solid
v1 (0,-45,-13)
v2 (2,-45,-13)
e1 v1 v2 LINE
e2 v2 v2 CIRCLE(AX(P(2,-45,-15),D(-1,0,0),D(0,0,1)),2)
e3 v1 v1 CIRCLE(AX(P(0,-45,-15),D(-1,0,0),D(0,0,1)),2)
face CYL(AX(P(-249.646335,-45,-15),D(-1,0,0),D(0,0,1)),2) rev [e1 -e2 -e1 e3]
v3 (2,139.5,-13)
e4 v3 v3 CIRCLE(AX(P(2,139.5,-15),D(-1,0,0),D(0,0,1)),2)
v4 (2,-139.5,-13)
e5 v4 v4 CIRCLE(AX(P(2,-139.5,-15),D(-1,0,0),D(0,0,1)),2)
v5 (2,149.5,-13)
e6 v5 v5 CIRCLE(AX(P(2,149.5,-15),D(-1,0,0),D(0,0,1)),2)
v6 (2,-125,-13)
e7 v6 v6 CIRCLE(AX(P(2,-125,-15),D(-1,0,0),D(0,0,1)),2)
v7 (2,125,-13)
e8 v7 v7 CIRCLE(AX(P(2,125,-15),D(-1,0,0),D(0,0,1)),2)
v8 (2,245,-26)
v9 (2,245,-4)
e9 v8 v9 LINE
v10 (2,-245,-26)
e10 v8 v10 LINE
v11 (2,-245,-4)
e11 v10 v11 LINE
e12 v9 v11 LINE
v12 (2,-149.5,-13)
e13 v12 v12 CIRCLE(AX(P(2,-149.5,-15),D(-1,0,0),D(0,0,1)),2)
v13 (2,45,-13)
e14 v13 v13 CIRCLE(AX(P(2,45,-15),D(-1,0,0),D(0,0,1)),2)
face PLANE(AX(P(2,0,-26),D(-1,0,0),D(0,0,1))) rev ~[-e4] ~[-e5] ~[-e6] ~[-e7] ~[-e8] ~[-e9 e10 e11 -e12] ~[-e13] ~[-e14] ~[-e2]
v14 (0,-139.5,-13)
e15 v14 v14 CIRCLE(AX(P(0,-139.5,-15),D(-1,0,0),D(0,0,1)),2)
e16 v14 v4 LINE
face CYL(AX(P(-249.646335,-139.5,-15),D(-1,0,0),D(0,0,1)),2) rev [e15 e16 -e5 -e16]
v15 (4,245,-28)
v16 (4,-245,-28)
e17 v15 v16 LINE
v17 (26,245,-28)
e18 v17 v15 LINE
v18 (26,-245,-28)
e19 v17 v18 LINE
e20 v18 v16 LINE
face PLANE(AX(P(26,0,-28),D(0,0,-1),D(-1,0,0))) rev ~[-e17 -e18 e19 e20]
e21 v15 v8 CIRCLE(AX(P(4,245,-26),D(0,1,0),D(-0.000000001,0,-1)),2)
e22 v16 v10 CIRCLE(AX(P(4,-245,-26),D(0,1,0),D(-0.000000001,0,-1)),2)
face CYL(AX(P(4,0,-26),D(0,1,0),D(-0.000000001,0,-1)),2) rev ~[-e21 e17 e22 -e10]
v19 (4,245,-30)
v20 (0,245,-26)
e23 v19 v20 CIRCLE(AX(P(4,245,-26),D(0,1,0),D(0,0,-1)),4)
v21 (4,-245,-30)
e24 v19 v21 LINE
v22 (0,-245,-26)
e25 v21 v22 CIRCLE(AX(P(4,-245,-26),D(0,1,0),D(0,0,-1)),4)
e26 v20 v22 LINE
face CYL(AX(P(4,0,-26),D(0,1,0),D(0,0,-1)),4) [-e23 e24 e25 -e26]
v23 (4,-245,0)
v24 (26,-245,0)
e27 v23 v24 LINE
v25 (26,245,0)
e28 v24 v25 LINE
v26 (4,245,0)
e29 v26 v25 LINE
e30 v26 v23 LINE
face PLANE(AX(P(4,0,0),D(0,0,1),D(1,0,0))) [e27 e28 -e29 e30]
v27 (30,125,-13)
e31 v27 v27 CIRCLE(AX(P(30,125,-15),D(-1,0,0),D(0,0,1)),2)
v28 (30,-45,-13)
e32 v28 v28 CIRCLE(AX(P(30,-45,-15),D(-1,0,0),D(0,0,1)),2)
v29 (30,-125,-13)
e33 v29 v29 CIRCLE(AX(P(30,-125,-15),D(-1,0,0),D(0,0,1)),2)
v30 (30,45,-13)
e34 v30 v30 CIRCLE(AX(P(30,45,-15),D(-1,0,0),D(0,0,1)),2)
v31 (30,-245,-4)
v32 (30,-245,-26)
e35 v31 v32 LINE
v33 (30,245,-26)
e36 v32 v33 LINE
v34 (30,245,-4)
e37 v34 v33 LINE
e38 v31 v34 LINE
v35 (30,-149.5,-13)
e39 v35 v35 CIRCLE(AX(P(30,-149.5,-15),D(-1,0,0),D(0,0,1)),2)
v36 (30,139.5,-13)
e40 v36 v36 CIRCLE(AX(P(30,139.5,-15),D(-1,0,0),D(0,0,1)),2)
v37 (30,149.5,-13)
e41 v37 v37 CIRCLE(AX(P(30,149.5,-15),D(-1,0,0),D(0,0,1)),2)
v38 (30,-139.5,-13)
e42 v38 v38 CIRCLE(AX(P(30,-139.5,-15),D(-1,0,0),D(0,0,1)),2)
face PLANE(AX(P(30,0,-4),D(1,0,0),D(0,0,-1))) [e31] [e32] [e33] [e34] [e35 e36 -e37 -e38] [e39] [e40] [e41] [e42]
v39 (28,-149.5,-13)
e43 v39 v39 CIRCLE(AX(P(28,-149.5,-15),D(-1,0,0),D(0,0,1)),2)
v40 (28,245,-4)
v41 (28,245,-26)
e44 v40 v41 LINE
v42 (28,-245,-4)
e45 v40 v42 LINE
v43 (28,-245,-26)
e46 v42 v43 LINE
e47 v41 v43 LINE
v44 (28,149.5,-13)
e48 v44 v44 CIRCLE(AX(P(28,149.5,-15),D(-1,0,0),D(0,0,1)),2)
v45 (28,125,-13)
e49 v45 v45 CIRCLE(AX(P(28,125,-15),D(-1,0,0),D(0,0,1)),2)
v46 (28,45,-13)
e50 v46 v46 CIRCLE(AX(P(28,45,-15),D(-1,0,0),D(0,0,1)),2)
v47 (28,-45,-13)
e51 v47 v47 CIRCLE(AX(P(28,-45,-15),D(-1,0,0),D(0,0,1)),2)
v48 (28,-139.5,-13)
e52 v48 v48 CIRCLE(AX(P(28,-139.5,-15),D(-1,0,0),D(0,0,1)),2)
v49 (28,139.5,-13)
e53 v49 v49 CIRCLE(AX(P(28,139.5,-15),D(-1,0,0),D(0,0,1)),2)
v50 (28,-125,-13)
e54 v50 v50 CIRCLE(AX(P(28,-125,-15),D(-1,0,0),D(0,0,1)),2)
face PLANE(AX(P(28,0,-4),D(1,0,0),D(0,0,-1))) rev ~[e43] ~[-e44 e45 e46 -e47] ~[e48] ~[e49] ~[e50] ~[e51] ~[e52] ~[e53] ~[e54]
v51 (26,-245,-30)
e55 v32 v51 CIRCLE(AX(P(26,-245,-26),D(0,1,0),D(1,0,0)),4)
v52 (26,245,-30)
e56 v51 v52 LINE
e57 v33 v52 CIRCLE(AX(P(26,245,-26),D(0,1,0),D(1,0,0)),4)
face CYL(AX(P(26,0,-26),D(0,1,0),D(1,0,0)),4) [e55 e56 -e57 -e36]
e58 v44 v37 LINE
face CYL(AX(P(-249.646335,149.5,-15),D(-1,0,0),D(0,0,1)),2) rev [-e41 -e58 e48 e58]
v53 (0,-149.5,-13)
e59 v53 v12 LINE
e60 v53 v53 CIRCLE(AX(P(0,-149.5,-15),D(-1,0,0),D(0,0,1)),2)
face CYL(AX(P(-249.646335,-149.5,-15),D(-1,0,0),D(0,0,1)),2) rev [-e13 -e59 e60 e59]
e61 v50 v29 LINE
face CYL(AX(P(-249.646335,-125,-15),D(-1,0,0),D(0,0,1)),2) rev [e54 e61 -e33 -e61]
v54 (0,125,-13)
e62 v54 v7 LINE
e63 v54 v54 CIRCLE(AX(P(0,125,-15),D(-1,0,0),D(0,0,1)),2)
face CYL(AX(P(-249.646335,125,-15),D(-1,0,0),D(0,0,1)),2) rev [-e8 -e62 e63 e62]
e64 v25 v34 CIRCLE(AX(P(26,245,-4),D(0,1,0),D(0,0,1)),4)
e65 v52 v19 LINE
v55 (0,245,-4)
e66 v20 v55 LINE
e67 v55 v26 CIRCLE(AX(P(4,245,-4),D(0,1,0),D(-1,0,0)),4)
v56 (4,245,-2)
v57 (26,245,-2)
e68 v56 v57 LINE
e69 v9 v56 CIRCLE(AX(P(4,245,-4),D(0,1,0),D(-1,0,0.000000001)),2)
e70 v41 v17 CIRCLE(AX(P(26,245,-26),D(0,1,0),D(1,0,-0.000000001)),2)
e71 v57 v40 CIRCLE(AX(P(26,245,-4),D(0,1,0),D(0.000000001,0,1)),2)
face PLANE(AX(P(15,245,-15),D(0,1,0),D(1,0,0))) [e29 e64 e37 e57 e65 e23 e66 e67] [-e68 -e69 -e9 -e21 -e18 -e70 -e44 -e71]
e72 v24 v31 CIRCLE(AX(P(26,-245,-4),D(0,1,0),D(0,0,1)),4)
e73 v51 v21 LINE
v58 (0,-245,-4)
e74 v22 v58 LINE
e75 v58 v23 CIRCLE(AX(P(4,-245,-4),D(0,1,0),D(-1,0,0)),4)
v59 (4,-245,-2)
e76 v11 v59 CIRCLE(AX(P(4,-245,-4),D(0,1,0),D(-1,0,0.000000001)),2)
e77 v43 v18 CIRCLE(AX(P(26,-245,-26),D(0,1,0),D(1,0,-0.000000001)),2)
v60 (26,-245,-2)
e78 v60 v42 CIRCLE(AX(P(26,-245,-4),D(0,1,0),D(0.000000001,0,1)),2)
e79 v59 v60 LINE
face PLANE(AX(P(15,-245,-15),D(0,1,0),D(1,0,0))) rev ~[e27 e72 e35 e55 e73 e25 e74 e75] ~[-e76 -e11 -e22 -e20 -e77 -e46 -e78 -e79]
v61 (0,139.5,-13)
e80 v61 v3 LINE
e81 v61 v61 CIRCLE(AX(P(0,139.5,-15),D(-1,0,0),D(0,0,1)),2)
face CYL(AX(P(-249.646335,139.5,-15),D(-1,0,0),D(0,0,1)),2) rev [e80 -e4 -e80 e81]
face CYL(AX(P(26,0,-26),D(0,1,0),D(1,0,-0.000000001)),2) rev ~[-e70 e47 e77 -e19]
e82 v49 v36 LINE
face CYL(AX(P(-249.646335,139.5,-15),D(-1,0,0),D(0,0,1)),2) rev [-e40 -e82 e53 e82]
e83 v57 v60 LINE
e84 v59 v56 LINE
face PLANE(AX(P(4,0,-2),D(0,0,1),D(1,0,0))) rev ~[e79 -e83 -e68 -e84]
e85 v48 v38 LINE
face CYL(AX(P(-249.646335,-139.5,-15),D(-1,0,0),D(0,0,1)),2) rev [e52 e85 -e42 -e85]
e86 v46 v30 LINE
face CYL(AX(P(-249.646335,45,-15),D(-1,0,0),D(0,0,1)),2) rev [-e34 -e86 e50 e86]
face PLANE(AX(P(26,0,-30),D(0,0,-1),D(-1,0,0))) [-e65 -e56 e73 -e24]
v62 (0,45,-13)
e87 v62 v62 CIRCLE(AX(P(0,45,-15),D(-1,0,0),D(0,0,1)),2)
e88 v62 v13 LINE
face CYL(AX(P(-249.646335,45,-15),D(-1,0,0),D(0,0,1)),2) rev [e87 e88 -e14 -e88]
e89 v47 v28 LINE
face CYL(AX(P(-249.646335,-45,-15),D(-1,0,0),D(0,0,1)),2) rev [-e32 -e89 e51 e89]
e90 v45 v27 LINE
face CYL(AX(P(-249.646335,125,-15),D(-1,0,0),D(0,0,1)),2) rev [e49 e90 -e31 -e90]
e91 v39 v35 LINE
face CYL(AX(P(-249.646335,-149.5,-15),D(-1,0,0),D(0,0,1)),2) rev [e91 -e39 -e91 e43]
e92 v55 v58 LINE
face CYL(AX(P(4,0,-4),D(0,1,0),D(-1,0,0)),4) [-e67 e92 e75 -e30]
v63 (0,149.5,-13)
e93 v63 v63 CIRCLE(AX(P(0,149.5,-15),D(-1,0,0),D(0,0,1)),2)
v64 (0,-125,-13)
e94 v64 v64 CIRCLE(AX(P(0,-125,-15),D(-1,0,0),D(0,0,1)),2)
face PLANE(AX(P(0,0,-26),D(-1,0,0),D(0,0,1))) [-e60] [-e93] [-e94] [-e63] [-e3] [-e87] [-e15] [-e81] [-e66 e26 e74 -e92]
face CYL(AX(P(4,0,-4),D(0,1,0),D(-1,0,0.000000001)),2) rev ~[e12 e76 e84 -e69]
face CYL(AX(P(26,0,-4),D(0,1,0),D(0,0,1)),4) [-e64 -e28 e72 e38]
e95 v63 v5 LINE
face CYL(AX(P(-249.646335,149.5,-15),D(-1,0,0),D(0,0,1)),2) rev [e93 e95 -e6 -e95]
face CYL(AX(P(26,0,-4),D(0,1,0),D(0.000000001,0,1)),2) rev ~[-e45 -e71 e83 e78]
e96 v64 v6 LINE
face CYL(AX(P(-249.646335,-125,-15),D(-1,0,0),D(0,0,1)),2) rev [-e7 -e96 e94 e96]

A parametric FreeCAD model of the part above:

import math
import FreeCAD as App
import Part
import Sketcher
from FreeCAD import Vector

doc = App.newDocument("Part")
params = doc.addObject("Spreadsheet::Sheet", "Params")
for row, (alias, value) in enumerate([
    ("sketch1_radius", "4 mm"),
    ("sketch1_radius2", "2 mm"),
    ("sketch1_width", "22 mm"),
    ("pad1_length", "490 mm"),
    ("sketch2_diameter", "4 mm"),
], start=1):
    params.set(f"A{row}", alias)
    params.set(f"B{row}", "=" + value)
    params.setAlias(f"B{row}", alias)

body = doc.addObject("PartDesign::Body", "Body")

# Sketch on XZ plane
sketch1 = doc.addObject("Sketcher::SketchObject", "Sketch")
body.addObject(sketch1)
sketch1.AttachmentSupport = (doc.XZ_Plane, [""])
sketch1.MapMode = "FlatFace"
sketch1.addGeometry([
    Part.LineSegment(Vector(4, 0, 0), Vector(26, 0, 0)),  # 0
    Part.ArcOfCircle(Part.Circle(Vector(26, -4, 0), Vector(0, 0, 1), 4), math.radians(0), math.radians(90)),  # 1
    Part.LineSegment(Vector(30, -4, 0), Vector(30, -26, 0)),  # 2
    Part.ArcOfCircle(Part.Circle(Vector(26, -26, 0), Vector(0, 0, 1), 4), math.radians(-90), math.radians(0)),  # 3
    Part.LineSegment(Vector(26, -30, 0), Vector(4, -30, 0)),  # 4
    Part.ArcOfCircle(Part.Circle(Vector(4, -26, 0), Vector(0, 0, 1), 4), math.radians(180), math.radians(270)),  # 5
    Part.LineSegment(Vector(0, -26, 0), Vector(0, -4, 0)),  # 6
    Part.ArcOfCircle(Part.Circle(Vector(4, -4, 0), Vector(0, 0, 1), 4), math.radians(90), math.radians(180)),  # 7
    Part.LineSegment(Vector(26, -2, 0), Vector(4, -2, 0)),  # 8
    Part.ArcOfCircle(Part.Circle(Vector(4, -4, 0), Vector(0, 0, 1), 2), math.radians(90), math.radians(180)),  # 9
    Part.LineSegment(Vector(2, -4, 0), Vector(2, -26, 0)),  # 10
    Part.ArcOfCircle(Part.Circle(Vector(4, -26, 0), Vector(0, 0, 1), 2), math.radians(-180), math.radians(-90)),  # 11
    Part.LineSegment(Vector(4, -28, 0), Vector(26, -28, 0)),  # 12
    Part.ArcOfCircle(Part.Circle(Vector(26, -26, 0), Vector(0, 0, 1), 2), math.radians(-90), math.radians(0)),  # 13
    Part.LineSegment(Vector(28, -26, 0), Vector(28, -4, 0)),  # 14
    Part.ArcOfCircle(Part.Circle(Vector(26, -4, 0), Vector(0, 0, 1), 2), math.radians(0), math.radians(90)),  # 15
], False)
sketch1.addConstraint([
    Sketcher.Constraint("Tangent", 0, 2, 1, 2),
    Sketcher.Constraint("Tangent", 1, 1, 2, 1),
    Sketcher.Constraint("Tangent", 2, 2, 3, 2),
    Sketcher.Constraint("Tangent", 3, 1, 4, 1),
    Sketcher.Constraint("Tangent", 4, 2, 5, 2),
    Sketcher.Constraint("Tangent", 5, 1, 6, 1),
    Sketcher.Constraint("Tangent", 6, 2, 7, 2),
    Sketcher.Constraint("Tangent", 7, 1, 0, 1),
    Sketcher.Constraint("Tangent", 8, 2, 9, 1),
    Sketcher.Constraint("Tangent", 9, 2, 10, 1),
    Sketcher.Constraint("Tangent", 10, 2, 11, 1),
    Sketcher.Constraint("Tangent", 11, 2, 12, 1),
    Sketcher.Constraint("Tangent", 12, 2, 13, 1),
    Sketcher.Constraint("Tangent", 13, 2, 14, 1),
    Sketcher.Constraint("Tangent", 14, 2, 15, 1),
    Sketcher.Constraint("Tangent", 15, 2, 8, 1),
    Sketcher.Constraint("Horizontal", 0),
    Sketcher.Constraint("Vertical", 2),
    Sketcher.Constraint("Horizontal", 4),
    Sketcher.Constraint("Vertical", 6),
    Sketcher.Constraint("Horizontal", 8),
    Sketcher.Constraint("Vertical", 10),
    Sketcher.Constraint("Horizontal", 12),
    Sketcher.Constraint("Vertical", 14),
    Sketcher.Constraint("Coincident", 9, 3, 7, 3),
    Sketcher.Constraint("Coincident", 11, 3, 5, 3),
    Sketcher.Constraint("Coincident", 13, 3, 3, 3),
    Sketcher.Constraint("Equal", 1, 3),
    Sketcher.Constraint("Equal", 3, 5),
    Sketcher.Constraint("Equal", 5, 7),
    Sketcher.Constraint("Equal", 13, 15),
    Sketcher.Constraint("PointOnObject", 0, 2, -1),
    Sketcher.Constraint("PointOnObject", 5, 1, -2),
    Sketcher.Constraint("Equal", 12, 2),
    Sketcher.Constraint("Radius", 1, 4.0),
    Sketcher.Constraint("Radius", 9, 2.0),
    Sketcher.Constraint("DistanceX", 0, 1, 0, 2, 22.0),
])
sketch1.setExpression("Constraints[34]", "Params.sketch1_radius")
sketch1.setExpression("Constraints[35]", "Params.sketch1_radius2")
sketch1.setExpression("Constraints[36]", "Params.sketch1_width")
pad1 = doc.addObject("PartDesign::Pad", "Pad")
body.addObject(pad1)
pad1.Profile = sketch1
pad1.setExpression("Length", "Params.pad1_length")
pad1.Midplane = True

# Sketch on YZ plane
sketch2 = doc.addObject("Sketcher::SketchObject", "Sketch001")
body.addObject(sketch2)
sketch2.AttachmentSupport = (doc.YZ_Plane, [""])
sketch2.MapMode = "FlatFace"
sketch2.addGeometry([
    Part.Circle(Vector(-149.5, -15, 0), Vector(0, 0, 1), 2),  # 0
    Part.Circle(Vector(-139.5, -15, 0), Vector(0, 0, 1), 2),  # 1
    Part.Circle(Vector(139.5, -15, 0), Vector(0, 0, 1), 2),  # 2
    Part.Circle(Vector(149.5, -15, 0), Vector(0, 0, 1), 2),  # 3
    Part.Circle(Vector(125, -15, 0), Vector(0, 0, 1), 2),  # 4
    Part.Circle(Vector(45, -15, 0), Vector(0, 0, 1), 2),  # 5
    Part.Circle(Vector(-45, -15, 0), Vector(0, 0, 1), 2),  # 6
    Part.Circle(Vector(-125, -15, 0), Vector(0, 0, 1), 2),  # 7
], False)
sketch2.addConstraint([
    Sketcher.Constraint("Equal", 0, 1),
    Sketcher.Constraint("Equal", 1, 2),
    Sketcher.Constraint("Equal", 2, 3),
    Sketcher.Constraint("Equal", 3, 4),
    Sketcher.Constraint("Equal", 4, 5),
    Sketcher.Constraint("Equal", 5, 6),
    Sketcher.Constraint("Equal", 6, 7),
    Sketcher.Constraint("Symmetric", 1, 3, 2, 3, -2),
    Sketcher.Constraint("Symmetric", 0, 3, 3, 3, -2),
    Sketcher.Constraint("Symmetric", 5, 3, 6, 3, -2),
    Sketcher.Constraint("Symmetric", 4, 3, 7, 3, -2),
    Sketcher.Constraint("Horizontal", 0, 3, 1, 3),
    Sketcher.Constraint("Horizontal", 3, 3, 4, 3),
    Sketcher.Constraint("Horizontal", 4, 3, 5, 3),
    Sketcher.Constraint("Diameter", 0, 4.0),
    Sketcher.Constraint("DistanceY", 0, 3, -1, 1, 15.0),
    Sketcher.Constraint("DistanceX", -1, 1, 4, 3, 125.0),
    Sketcher.Constraint("DistanceX", -1, 1, 5, 3, 45.0),
    Sketcher.Constraint("DistanceX", 0, 3, 1, 3, 10.0),
    Sketcher.Constraint("DistanceX", 1, 3, 2, 3, 279.0),
])
sketch2.setExpression("Constraints[14]", "Params.sketch2_diameter")
pocket1 = doc.addObject("PartDesign::Pocket", "Pocket")
body.addObject(pocket1)
pocket1.Profile = sketch2
pocket1.Type = "ThroughAll"
pocket1.Midplane = True

doc.recompute()
